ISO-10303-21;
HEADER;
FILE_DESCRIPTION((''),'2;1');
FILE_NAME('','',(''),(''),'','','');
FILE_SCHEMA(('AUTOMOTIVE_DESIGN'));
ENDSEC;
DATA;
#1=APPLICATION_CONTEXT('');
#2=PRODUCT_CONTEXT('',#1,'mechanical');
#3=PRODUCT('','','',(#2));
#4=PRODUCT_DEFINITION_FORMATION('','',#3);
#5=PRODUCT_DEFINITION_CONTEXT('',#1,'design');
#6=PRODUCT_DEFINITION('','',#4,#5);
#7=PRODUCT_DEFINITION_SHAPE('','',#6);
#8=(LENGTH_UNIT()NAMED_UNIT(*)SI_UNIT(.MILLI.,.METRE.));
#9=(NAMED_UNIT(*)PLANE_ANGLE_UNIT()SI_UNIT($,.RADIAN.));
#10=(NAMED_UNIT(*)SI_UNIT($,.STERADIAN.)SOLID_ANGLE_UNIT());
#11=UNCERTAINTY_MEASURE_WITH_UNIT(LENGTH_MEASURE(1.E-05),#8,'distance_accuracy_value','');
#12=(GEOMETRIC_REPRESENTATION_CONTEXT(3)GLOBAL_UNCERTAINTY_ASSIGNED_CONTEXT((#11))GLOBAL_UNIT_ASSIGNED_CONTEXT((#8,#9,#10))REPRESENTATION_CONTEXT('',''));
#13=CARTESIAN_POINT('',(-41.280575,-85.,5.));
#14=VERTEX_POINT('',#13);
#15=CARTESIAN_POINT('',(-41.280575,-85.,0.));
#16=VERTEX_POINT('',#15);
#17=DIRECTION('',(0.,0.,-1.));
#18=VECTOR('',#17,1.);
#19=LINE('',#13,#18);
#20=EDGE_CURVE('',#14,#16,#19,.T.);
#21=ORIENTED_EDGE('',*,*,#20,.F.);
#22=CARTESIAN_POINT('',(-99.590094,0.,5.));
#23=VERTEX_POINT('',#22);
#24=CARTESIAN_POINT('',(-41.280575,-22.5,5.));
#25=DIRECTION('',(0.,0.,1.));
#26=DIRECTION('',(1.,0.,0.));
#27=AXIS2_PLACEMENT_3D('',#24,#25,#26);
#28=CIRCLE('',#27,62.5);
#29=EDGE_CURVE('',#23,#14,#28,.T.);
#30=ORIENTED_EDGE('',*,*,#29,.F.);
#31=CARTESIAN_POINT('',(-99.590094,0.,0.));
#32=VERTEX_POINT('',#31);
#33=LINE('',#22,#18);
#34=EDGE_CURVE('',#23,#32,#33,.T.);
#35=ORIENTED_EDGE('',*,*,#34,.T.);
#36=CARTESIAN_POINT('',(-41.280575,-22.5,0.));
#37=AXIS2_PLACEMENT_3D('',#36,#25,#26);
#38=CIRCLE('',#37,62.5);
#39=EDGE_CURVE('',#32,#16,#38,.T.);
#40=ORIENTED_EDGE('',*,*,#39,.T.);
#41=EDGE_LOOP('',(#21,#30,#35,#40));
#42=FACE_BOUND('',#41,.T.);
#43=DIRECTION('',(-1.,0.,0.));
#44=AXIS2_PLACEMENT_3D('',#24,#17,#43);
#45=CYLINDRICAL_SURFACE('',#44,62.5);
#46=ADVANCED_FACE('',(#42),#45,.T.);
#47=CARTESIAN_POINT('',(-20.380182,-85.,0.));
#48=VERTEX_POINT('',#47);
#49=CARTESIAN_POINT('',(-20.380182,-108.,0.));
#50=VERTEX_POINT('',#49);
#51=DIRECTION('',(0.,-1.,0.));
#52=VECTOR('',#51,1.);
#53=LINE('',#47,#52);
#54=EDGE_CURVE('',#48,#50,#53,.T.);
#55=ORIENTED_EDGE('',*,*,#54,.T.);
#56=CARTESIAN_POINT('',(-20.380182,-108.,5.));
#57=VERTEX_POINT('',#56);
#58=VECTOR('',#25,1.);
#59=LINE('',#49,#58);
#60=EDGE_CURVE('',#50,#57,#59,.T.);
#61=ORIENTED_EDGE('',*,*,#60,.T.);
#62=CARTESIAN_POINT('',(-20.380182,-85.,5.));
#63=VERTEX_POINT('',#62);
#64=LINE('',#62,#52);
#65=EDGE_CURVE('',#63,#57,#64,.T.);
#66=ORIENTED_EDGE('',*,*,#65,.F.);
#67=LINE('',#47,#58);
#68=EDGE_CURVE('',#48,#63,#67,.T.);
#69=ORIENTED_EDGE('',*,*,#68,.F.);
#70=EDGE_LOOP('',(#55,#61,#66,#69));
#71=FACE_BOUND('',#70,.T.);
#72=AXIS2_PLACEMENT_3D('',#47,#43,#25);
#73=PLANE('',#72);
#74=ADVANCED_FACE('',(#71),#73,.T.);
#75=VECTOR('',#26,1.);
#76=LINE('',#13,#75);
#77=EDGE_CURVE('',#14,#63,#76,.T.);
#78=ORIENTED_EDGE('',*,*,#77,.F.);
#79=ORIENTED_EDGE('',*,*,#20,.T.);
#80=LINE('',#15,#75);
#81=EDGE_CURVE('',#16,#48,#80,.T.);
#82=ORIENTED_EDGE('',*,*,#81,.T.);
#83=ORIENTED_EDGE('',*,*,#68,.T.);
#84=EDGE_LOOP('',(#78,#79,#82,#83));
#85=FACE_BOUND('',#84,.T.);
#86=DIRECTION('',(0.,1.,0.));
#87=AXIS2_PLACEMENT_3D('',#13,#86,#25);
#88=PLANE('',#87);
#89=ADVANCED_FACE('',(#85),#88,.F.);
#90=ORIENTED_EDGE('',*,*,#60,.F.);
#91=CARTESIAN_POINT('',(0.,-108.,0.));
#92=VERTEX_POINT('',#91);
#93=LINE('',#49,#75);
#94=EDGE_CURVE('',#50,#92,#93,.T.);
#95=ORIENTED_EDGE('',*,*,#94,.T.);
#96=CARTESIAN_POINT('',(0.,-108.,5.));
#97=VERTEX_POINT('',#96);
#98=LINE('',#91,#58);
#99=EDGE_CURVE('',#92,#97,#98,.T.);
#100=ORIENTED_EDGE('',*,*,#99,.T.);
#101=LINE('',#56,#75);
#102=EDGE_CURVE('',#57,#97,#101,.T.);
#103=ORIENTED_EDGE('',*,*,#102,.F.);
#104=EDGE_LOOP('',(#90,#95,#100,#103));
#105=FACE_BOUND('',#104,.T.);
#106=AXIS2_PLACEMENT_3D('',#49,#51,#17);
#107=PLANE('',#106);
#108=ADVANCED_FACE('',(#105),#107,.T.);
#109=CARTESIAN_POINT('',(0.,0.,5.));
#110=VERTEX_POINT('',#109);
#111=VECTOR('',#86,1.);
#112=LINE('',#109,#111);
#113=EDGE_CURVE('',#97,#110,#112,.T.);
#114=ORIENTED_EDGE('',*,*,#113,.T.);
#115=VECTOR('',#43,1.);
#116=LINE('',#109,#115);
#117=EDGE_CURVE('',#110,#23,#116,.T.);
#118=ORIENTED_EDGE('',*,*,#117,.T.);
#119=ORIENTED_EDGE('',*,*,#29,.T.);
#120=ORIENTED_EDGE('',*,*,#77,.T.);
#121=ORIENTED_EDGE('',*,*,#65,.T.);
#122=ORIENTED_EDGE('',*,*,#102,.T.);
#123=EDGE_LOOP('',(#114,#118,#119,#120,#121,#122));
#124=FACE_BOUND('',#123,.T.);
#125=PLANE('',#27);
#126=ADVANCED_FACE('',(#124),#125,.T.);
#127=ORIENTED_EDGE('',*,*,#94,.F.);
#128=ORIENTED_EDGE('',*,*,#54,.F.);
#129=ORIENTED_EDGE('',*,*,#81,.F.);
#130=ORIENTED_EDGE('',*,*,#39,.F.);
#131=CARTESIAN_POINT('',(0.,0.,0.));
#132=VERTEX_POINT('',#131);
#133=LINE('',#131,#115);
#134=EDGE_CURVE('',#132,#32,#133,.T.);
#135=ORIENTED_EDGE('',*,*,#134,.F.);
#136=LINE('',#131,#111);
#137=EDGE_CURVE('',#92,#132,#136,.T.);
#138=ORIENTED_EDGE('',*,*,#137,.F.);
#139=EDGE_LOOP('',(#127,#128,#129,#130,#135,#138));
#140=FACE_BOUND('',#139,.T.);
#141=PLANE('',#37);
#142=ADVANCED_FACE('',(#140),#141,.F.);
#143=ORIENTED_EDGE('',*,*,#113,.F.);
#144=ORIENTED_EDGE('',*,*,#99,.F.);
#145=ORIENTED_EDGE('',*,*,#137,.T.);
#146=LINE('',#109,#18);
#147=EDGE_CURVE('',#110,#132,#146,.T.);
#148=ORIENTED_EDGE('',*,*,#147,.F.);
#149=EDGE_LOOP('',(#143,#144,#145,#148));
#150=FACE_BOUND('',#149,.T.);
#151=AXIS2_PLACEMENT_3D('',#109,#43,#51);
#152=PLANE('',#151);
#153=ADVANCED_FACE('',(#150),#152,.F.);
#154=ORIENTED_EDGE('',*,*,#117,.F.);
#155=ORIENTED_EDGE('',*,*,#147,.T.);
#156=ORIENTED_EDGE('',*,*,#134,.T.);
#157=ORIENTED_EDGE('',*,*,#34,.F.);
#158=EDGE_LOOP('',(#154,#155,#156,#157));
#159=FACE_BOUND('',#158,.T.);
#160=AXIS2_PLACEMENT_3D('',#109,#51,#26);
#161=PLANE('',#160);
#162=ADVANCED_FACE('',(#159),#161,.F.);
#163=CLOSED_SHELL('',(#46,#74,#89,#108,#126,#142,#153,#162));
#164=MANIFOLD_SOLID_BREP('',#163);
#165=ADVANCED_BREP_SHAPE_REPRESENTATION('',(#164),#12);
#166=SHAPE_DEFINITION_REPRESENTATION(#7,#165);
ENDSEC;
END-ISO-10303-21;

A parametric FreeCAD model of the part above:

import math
import FreeCAD as App
import Part
import Sketcher


def add_polygon(sketch, points):
    """Adds a closed chain of lines whose ends are joined by coincident constraints."""
    first, n = sketch.GeometryCount, len(points)
    for a, b in zip(points, points[1:] + points[:1]):
        sketch.addGeometry(Part.LineSegment(App.Vector(*a, 0), App.Vector(*b, 0)), False)
    for i in range(n):
        sketch.addConstraint(Sketcher.Constraint("Coincident", first + i, 2, first + (i + 1) % n, 1))

doc = App.newDocument("Part")
body = doc.addObject("PartDesign::Body", "Body")

sketch1 = body.newObject("Sketcher::SketchObject", "Sketch")
sketch1.AttachmentSupport = (doc.getObject("XY_Plane"), [""])
sketch1.MapMode = "FlatFace"
sketch1.addGeometry(Part.LineSegment(App.Vector(0, -85, 0), App.Vector(0, 0, 0)), False)
sketch1.addGeometry(Part.LineSegment(App.Vector(0, 0, 0), App.Vector(-99.590094, 0, 0)), False)
sketch1.addGeometry(Part.ArcOfCircle(Part.Circle(App.Vector(-41.280575, -22.5, 0), App.Vector(0, 0, 1), 62.5), math.radians(158.899804), math.radians(270)), False)
sketch1.addGeometry(Part.LineSegment(App.Vector(-41.280575, -85, 0), App.Vector(0, -85, 0)), False)
sketch1.addConstraint(Sketcher.Constraint("Coincident", 0, 2, 1, 1))
sketch1.addConstraint(Sketcher.Constraint("Coincident", 1, 2, 2, 1))
sketch1.addConstraint(Sketcher.Constraint("Tangent", 2, 2, 3, 1))
sketch1.addConstraint(Sketcher.Constraint("Coincident", 3, 2, 0, 1))
sketch1.addConstraint(Sketcher.Constraint("Vertical", 0))
sketch1.addConstraint(Sketcher.Constraint("Horizontal", 1))
sketch1.addConstraint(Sketcher.Constraint("Horizontal", 3))
sketch1.addConstraint(Sketcher.Constraint("Coincident", 0, 2, -1, 1))
sketch1.addConstraint(Sketcher.Constraint("Radius", 2, 62.5))
sketch1.addConstraint(Sketcher.Constraint("DistanceY", 0, 1, 0, 2, 85.0))
sketch1.addConstraint(Sketcher.Constraint("DistanceX", 1, 2, 1, 1, 99.590094))
pad1 = body.newObject("PartDesign::Pad", "Pad")
pad1.Profile = sketch1
pad1.Length = 5

sketch2 = body.newObject("Sketcher::SketchObject", "Sketch001")
sketch2.AttachmentSupport = (doc.getObject("XY_Plane"), [""])
sketch2.MapMode = "FlatFace"
sketch2.AttachmentOffset = App.Placement(App.Vector(0, 0, 5), App.Rotation())
add_polygon(sketch2, [(-20.380182, -85), (-20.380182, -108), (0, -108), (0, -85)])
sketch2.addConstraint(Sketcher.Constraint("Vertical", 0))
sketch2.addConstraint(Sketcher.Constraint("Horizontal", 1))
sketch2.addConstraint(Sketcher.Constraint("Vertical", 2))
sketch2.addConstraint(Sketcher.Constraint("Horizontal", 3))
sketch2.addConstraint(Sketcher.Constraint("PointOnObject", 1, 2, -2))
sketch2.addConstraint(Sketcher.Constraint("DistanceY", 0, 2, 0, 1, 23.0))
sketch2.addConstraint(Sketcher.Constraint("DistanceY", 0, 2, -1, 1, 108.0))
sketch2.addConstraint(Sketcher.Constraint("DistanceX", 1, 1, 1, 2, 20.380182))
pad2 = body.newObject("PartDesign::Pad", "Pad001")
pad2.Profile = sketch2
pad2.Length = 5
pad2.Reversed = True

doc.recompute()
